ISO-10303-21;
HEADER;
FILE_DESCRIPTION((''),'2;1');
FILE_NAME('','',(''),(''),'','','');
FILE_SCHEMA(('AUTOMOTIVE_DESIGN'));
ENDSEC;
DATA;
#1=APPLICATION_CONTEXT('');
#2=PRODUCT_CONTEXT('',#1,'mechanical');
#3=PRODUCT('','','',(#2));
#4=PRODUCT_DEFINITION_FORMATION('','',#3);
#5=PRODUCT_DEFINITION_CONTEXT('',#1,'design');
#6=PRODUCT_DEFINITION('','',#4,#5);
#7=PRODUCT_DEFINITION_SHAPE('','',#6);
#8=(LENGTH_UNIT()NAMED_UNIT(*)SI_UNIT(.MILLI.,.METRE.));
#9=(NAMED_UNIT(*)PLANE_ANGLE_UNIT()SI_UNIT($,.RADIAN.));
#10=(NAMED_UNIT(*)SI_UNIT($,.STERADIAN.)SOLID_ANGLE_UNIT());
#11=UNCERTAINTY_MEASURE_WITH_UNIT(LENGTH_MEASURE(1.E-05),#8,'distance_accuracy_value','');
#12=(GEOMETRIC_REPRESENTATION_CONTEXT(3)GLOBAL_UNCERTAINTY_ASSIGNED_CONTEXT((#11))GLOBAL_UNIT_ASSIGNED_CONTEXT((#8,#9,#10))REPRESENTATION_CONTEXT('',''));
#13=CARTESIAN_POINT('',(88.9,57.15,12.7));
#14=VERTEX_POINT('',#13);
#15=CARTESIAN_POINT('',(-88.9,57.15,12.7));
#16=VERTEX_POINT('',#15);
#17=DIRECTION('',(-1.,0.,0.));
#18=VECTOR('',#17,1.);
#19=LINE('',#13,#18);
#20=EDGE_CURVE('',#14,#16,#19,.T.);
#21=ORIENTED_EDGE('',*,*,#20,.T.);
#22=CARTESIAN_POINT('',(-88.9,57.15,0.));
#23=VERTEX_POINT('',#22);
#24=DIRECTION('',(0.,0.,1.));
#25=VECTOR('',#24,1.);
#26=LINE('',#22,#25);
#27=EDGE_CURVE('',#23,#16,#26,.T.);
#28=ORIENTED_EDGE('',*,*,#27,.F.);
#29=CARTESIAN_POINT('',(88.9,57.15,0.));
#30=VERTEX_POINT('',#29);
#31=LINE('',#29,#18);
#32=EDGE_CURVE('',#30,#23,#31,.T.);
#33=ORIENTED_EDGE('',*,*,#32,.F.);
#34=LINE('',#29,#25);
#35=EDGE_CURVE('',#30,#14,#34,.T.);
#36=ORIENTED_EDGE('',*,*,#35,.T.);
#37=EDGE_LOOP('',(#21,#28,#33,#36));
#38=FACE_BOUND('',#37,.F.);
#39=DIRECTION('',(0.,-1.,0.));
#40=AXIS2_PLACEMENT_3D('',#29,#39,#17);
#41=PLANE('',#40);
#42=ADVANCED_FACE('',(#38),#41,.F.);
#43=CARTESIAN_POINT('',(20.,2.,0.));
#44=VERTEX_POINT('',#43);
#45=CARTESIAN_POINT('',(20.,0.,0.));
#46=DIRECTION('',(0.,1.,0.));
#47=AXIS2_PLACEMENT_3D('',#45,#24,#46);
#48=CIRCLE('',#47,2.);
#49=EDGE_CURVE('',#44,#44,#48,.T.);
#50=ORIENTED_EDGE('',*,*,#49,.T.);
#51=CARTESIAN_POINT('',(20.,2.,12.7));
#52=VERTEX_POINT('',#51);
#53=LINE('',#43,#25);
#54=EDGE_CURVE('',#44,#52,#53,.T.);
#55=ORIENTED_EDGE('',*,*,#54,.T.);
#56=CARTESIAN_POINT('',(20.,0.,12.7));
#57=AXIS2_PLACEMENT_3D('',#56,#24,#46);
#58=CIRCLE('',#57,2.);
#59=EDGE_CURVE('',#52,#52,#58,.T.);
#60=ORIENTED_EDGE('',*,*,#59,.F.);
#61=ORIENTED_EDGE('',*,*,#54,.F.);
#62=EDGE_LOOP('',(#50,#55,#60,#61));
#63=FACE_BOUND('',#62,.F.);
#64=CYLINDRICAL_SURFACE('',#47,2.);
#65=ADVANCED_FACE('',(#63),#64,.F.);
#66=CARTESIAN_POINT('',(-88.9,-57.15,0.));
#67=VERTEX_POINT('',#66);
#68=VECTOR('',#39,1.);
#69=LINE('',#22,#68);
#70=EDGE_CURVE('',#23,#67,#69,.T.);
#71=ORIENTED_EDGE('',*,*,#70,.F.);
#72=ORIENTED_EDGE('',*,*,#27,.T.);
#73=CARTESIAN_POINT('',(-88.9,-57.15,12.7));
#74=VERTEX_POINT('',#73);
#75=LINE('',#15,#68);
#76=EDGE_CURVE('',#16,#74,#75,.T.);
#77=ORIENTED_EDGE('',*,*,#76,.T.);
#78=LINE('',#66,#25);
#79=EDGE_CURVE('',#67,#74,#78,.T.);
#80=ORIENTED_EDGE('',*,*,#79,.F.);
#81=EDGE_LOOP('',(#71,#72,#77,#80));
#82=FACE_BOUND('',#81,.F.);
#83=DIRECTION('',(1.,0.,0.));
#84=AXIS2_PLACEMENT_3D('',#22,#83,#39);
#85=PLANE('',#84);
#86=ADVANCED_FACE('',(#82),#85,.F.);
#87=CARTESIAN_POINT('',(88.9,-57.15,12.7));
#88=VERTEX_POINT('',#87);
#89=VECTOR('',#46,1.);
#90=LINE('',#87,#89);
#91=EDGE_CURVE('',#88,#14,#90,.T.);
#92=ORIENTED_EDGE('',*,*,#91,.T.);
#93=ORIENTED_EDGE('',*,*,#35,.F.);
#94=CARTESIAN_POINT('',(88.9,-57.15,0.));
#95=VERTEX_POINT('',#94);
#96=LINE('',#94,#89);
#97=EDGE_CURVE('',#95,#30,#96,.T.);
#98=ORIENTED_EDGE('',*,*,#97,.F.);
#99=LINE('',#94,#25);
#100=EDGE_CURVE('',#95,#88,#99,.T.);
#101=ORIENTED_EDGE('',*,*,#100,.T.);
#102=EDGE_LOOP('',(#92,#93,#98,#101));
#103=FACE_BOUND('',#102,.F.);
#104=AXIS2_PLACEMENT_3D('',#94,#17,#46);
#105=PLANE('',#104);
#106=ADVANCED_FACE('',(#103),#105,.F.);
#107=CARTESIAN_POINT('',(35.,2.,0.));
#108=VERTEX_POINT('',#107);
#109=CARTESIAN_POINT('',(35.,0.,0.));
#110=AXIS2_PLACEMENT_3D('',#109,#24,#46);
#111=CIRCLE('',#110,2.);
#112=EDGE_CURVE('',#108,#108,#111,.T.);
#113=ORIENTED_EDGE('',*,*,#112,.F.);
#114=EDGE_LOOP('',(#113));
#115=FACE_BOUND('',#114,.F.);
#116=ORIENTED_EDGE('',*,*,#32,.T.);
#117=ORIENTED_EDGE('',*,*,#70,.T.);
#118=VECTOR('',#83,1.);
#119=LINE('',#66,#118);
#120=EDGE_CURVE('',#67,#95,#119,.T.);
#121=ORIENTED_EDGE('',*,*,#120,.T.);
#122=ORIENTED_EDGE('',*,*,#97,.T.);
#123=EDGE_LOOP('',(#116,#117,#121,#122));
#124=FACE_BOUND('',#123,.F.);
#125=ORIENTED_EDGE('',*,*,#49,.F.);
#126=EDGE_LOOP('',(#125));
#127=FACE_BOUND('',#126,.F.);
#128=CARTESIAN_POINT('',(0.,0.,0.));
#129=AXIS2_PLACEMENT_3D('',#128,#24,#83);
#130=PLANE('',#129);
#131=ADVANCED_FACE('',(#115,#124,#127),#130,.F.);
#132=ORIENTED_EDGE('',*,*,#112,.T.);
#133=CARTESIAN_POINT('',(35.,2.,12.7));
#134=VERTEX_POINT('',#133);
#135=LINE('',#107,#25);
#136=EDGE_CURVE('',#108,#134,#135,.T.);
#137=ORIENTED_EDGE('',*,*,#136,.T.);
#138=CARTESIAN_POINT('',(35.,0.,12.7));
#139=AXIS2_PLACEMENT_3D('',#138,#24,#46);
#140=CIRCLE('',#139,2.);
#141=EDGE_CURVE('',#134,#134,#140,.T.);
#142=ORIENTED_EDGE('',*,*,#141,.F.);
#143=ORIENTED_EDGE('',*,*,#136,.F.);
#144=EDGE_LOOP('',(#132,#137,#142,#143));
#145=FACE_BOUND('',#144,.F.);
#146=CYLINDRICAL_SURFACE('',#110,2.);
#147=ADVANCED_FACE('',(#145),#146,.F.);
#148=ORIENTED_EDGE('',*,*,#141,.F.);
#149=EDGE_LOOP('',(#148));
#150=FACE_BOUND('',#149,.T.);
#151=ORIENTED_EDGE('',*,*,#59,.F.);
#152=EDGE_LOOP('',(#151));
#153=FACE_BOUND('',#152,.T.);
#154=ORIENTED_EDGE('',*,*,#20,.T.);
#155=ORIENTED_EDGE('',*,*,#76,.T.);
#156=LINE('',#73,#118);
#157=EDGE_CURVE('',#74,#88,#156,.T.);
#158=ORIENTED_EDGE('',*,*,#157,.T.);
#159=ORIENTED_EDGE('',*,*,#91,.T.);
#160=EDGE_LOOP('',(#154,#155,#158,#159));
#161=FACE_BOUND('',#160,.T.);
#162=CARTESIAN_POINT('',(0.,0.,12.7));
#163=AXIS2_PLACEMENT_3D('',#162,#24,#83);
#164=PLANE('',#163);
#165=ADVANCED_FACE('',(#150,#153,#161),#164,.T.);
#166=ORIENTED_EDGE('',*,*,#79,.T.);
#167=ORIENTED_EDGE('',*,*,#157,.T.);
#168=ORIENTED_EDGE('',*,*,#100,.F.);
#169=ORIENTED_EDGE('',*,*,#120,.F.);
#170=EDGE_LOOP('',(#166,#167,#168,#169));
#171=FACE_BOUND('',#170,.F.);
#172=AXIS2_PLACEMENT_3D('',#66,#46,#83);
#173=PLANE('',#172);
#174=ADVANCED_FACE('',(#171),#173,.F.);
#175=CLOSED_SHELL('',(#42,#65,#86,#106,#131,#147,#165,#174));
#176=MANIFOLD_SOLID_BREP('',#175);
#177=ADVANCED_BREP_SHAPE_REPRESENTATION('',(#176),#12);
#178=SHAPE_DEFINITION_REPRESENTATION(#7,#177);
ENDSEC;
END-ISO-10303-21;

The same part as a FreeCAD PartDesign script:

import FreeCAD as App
import Part
import Sketcher

V = App.Vector
Q = App.Units.Quantity

doc = App.newDocument("Part")
params = doc.addObject("Spreadsheet::Sheet", "Params")
for row, (alias, value) in enumerate([
    ("sketch1_width", "7 in"),
    ("sketch1_height", "4.5 in"),
    ("pad1_length", "0.5 in"),
    ("hole_diameter", "4 mm"),
], start=1):
    params.set(f"A{row}", alias)
    params.set(f"B{row}", "=" + value)
    params.setAlias(f"B{row}", alias)

body = doc.addObject("PartDesign::Body", "Body")

sketch1 = body.newObject("Sketcher::SketchObject", "Sketch")
sketch1.AttachmentSupport = (doc.getObject("XY_Plane"), [""])
sketch1.MapMode = "FlatFace"
sketch1.addGeometry([
    Part.LineSegment(V(-88.9, 57.15, 0), V(-88.9, -57.15, 0)),
    Part.LineSegment(V(-88.9, -57.15, 0), V(88.9, -57.15, 0)),
    Part.LineSegment(V(88.9, -57.15, 0), V(88.9, 57.15, 0)),
    Part.LineSegment(V(88.9, 57.15, 0), V(-88.9, 57.15, 0)),
], False)
sketch1.addConstraint([
    Sketcher.Constraint("Coincident", 0, 2, 1, 1),
    Sketcher.Constraint("Coincident", 1, 2, 2, 1),
    Sketcher.Constraint("Coincident", 2, 2, 3, 1),
    Sketcher.Constraint("Coincident", 3, 2, 0, 1),
    Sketcher.Constraint("Vertical", 0),
    Sketcher.Constraint("Horizontal", 1),
    Sketcher.Constraint("Vertical", 2),
    Sketcher.Constraint("Horizontal", 3),
    Sketcher.Constraint("Symmetric", 0, 2, 2, 2, -1, 1),
    Sketcher.Constraint("DistanceX", 1, 1, 1, 2, Q("7 in")),
    Sketcher.Constraint("DistanceY", 0, 2, 0, 1, Q("4.5 in")),
])
sketch1.setExpression("Constraints[9]", "Params.sketch1_width")
sketch1.setExpression("Constraints[10]", "Params.sketch1_height")
pad1 = body.newObject("PartDesign::Pad", "Pad")
pad1.Profile = sketch1
pad1.setExpression("Length", "Params.pad1_length")

sketch2 = body.newObject("Sketcher::SketchObject", "Sketch001")
sketch2.AttachmentSupport = (doc.getObject("XY_Plane"), [""])
sketch2.MapMode = "FlatFace"
sketch2.addGeometry([
    Part.Circle(V(35, 0, 0), V(0, 0, 1), 2),
    Part.Circle(V(20, 0, 0), V(0, 0, 1), 2),
], False)
sketch2.addConstraint([
    Sketcher.Constraint("Equal", 0, 1),
    Sketcher.Constraint("PointOnObject", 0, 3, -1),
    Sketcher.Constraint("PointOnObject", 1, 3, -1),
    Sketcher.Constraint("Diameter", 0, Q("4 mm")),
    Sketcher.Constraint("DistanceX", -1, 1, 1, 3, Q("0.7874 in")),
    Sketcher.Constraint("DistanceX", -1, 1, 0, 3, Q("35 mm")),
])
doc.recompute()
hole = body.newObject("PartDesign::Hole", "Hole")
hole.Profile = sketch2
hole.ThreadType = "None"
hole.setExpression("Diameter", "Params.hole_diameter")
hole.DepthType = "ThroughAll"
hole.Reversed = True

doc.recompute()
